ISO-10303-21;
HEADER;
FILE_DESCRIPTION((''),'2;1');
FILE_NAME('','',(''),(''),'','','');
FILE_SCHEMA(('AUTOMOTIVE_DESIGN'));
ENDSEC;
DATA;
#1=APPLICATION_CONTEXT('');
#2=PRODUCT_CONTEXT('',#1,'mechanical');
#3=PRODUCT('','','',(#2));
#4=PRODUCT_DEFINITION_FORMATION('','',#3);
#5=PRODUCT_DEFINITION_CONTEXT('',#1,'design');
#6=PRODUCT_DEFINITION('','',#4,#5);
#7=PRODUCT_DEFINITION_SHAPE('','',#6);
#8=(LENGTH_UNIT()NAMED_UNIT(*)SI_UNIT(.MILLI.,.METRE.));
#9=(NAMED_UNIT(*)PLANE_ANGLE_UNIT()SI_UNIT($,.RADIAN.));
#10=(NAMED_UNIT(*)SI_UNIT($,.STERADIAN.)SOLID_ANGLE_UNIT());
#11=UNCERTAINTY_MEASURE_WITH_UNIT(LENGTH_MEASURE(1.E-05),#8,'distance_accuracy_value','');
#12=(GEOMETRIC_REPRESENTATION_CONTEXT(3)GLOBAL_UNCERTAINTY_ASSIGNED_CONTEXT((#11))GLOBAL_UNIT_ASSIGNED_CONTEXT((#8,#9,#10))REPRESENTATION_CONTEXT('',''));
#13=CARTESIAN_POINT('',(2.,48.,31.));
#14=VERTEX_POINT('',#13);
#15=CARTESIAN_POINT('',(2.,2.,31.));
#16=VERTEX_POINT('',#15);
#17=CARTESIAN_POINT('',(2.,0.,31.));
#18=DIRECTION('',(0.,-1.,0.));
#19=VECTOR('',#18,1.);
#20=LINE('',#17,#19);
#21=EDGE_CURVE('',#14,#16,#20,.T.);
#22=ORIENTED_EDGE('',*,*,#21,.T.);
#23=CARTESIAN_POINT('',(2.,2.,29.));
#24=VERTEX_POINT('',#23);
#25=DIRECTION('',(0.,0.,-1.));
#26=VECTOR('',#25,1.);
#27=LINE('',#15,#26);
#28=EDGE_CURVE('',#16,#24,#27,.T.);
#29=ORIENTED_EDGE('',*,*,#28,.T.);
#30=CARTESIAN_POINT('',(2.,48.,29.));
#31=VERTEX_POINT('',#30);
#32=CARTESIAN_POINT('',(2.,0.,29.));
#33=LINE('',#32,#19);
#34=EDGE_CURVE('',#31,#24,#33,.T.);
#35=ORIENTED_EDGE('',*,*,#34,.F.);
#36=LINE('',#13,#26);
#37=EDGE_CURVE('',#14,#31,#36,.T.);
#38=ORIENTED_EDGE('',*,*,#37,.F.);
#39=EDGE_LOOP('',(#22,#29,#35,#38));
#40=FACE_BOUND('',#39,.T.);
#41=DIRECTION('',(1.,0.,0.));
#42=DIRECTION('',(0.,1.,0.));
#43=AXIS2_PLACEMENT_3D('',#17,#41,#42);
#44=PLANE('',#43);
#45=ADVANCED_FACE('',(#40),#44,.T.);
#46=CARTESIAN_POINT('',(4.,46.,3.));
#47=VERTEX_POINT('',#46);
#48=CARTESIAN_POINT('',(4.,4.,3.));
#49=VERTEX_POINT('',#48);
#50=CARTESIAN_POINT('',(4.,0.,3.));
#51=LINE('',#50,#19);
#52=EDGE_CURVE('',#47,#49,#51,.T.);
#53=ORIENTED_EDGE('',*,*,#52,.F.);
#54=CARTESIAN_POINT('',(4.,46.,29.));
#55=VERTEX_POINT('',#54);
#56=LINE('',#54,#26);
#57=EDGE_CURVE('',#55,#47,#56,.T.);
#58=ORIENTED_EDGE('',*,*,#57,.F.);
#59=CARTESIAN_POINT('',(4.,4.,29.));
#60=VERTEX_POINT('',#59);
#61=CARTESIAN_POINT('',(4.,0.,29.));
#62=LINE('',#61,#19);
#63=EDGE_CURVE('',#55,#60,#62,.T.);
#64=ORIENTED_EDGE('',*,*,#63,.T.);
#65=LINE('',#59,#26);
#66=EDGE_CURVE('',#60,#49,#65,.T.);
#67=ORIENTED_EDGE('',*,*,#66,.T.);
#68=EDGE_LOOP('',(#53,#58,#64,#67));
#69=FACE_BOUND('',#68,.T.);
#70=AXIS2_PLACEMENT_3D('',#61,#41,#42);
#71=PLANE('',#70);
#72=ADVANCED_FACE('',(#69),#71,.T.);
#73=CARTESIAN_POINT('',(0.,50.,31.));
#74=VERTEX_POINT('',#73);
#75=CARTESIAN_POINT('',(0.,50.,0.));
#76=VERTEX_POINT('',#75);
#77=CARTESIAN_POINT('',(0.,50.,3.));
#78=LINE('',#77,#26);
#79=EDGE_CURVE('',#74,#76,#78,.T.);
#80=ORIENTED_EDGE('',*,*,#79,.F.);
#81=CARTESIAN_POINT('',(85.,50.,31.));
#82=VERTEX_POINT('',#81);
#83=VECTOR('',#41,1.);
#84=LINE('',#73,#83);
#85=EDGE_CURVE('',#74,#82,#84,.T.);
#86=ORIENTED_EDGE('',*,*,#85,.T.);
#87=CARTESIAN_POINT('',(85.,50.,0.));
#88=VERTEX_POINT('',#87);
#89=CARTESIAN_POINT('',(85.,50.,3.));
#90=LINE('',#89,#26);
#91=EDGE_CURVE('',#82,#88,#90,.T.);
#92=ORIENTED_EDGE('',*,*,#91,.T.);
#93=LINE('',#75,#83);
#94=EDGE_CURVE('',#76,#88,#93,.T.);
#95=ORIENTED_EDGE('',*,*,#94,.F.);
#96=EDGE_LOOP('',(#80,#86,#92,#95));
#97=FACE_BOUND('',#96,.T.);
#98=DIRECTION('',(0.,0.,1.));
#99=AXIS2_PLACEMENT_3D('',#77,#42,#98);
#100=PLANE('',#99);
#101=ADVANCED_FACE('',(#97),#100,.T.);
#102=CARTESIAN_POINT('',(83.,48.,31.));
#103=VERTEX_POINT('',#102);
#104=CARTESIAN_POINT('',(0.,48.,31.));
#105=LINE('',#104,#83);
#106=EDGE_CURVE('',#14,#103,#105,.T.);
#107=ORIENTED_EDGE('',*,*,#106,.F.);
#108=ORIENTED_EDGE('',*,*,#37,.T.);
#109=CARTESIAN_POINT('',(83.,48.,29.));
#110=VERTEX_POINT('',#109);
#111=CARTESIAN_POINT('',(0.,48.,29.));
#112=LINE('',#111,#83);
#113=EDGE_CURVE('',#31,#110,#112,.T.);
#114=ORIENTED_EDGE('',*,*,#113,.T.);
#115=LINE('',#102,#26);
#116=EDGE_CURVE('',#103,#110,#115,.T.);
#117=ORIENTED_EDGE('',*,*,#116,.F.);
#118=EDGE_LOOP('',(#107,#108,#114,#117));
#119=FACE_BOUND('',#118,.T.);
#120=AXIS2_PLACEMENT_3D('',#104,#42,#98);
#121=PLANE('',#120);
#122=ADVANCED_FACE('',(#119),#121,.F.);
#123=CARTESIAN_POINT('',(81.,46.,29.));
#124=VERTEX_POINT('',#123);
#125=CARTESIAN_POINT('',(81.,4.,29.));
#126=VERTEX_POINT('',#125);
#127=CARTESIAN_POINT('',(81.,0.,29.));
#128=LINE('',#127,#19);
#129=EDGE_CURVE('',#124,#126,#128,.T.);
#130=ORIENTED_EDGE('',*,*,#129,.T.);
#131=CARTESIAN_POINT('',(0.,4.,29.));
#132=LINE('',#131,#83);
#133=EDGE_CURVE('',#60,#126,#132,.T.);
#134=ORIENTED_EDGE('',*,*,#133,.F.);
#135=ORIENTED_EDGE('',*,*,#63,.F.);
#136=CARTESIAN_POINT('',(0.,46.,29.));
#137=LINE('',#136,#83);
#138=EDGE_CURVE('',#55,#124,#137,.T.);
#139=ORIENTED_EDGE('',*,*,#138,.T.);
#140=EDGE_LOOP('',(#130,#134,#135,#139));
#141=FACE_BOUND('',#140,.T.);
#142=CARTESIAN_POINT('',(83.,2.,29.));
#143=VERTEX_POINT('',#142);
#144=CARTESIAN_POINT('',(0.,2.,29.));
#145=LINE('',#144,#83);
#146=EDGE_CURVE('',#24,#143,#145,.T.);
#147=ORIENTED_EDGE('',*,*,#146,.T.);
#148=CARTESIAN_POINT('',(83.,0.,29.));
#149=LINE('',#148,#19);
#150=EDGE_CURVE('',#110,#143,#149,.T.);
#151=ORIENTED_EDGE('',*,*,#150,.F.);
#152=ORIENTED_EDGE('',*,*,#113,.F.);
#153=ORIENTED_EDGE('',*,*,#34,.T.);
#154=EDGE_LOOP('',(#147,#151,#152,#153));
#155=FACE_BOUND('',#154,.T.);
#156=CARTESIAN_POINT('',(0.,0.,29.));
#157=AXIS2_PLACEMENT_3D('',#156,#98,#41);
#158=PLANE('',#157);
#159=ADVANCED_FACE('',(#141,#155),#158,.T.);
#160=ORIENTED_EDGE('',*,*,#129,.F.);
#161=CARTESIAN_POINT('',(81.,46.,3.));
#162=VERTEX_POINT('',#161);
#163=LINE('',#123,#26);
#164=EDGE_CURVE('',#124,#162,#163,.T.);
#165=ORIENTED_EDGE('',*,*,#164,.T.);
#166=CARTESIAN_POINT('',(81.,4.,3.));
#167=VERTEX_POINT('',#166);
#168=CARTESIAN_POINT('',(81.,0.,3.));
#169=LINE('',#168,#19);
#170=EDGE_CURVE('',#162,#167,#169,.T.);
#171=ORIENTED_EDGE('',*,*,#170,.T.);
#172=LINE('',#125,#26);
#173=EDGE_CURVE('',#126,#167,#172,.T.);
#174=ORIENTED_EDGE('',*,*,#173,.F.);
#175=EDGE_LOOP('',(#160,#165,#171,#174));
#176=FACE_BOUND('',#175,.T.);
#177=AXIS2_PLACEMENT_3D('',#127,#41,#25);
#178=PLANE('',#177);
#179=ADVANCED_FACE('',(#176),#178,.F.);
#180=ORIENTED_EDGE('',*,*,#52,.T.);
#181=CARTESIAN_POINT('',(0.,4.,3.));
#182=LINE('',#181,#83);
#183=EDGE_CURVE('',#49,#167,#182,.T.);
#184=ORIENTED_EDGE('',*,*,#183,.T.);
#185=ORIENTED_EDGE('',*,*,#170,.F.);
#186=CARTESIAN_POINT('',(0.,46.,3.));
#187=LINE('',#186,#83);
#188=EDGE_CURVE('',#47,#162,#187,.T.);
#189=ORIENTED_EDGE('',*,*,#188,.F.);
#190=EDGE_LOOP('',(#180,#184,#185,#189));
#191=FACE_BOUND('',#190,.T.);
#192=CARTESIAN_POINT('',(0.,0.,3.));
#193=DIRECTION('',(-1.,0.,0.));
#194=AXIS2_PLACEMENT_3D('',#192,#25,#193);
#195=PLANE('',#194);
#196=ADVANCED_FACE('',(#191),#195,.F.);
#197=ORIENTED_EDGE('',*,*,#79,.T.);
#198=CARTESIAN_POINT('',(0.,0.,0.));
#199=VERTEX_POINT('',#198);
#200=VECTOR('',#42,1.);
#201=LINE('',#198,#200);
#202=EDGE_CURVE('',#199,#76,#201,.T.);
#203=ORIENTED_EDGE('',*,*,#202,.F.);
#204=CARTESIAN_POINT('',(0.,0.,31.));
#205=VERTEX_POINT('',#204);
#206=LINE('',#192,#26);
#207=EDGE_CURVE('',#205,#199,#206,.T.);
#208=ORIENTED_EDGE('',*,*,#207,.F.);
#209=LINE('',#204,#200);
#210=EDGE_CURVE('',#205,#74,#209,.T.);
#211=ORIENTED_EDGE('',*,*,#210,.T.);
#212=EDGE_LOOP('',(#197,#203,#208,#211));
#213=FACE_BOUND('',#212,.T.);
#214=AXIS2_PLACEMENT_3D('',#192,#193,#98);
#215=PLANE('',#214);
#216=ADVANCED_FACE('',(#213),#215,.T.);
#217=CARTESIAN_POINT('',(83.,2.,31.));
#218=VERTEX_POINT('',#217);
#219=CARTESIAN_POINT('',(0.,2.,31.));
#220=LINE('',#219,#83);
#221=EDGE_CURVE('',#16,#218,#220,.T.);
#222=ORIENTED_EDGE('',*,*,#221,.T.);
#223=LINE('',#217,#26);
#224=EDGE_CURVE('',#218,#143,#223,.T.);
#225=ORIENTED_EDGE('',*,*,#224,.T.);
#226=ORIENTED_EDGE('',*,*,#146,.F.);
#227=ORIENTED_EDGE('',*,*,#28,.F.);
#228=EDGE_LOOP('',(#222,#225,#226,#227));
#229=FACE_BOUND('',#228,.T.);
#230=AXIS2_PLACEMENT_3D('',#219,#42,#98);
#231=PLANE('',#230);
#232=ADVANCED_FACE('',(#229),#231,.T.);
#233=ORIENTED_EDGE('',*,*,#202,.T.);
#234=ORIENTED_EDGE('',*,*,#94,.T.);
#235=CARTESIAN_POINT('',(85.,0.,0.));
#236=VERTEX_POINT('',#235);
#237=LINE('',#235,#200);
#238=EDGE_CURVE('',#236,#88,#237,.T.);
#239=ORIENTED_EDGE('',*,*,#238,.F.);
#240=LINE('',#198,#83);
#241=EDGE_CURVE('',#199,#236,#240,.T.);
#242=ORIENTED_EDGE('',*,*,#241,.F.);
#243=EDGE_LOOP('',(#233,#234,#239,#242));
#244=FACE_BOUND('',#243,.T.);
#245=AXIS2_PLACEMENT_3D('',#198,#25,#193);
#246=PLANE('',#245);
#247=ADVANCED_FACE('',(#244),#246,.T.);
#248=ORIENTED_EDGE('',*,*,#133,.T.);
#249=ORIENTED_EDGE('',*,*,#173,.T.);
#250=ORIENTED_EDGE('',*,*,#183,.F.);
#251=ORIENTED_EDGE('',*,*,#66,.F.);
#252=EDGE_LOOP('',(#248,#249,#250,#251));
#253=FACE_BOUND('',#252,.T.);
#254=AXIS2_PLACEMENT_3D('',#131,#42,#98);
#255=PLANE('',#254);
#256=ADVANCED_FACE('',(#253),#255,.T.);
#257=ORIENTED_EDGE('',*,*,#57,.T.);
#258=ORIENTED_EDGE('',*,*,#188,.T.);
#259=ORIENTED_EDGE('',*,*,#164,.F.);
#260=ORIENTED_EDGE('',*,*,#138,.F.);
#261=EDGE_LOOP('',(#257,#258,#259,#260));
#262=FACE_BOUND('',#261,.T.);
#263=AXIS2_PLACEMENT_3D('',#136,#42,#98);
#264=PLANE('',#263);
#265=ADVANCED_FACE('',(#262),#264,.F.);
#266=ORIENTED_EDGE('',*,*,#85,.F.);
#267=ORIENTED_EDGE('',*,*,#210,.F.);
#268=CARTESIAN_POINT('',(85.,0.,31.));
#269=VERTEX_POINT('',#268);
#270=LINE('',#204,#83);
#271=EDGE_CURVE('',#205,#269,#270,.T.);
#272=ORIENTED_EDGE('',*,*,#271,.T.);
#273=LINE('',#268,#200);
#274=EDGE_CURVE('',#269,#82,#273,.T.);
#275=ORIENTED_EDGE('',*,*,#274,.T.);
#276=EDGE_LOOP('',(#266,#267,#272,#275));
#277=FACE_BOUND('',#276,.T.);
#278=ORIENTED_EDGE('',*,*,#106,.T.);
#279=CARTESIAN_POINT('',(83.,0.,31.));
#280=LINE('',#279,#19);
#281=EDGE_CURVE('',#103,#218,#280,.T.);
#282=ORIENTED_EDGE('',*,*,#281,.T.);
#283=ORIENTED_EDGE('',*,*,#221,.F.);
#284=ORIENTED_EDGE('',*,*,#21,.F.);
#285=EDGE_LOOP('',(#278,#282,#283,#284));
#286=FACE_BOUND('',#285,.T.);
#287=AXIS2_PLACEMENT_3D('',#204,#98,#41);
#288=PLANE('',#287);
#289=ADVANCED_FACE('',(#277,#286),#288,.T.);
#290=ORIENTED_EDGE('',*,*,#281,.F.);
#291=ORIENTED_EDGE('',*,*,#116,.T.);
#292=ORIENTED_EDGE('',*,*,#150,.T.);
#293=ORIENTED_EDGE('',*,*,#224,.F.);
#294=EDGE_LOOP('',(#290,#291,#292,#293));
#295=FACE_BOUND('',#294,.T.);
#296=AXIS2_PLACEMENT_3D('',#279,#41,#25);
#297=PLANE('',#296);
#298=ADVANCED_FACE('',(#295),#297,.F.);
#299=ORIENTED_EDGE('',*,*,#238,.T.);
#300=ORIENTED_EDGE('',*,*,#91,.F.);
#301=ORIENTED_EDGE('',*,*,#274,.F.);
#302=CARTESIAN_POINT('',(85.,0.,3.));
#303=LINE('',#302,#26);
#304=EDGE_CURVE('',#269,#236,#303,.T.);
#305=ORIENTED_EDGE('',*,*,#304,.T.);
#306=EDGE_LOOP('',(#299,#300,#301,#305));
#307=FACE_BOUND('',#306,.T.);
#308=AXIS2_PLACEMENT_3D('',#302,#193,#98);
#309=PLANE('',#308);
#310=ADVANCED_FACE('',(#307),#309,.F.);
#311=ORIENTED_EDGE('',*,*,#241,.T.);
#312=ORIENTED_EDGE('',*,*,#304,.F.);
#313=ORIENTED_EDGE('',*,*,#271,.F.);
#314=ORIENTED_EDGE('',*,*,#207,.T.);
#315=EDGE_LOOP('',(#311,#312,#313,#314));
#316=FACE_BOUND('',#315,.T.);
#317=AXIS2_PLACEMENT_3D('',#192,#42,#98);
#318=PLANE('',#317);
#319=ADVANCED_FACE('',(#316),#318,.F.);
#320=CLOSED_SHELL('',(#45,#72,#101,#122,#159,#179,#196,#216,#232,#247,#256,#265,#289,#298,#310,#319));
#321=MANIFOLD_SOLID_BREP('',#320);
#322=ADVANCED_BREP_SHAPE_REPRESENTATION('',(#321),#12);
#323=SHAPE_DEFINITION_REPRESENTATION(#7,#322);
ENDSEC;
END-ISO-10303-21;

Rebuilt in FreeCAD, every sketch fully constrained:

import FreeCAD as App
import Part
import Sketcher

doc = App.newDocument("Part")
params = doc.addObject("Spreadsheet::Sheet", "Params")
for row, (alias, value) in enumerate([
    ("sketch1_width", "85 mm"),
    ("sketch1_height", "50 mm"),
    ("pad1_length", "3 mm"),
    ("sketch2_width", "85 mm"),
    ("sketch2_width2", "81 mm"),
    ("sketch2_height", "50 mm"),
    ("sketch2_height2", "46 mm"),
    ("pad2_length", "31 mm"),
    ("sketch3_width", "81 mm"),
    ("sketch3_width2", "77 mm"),
    ("sketch3_height", "46 mm"),
    ("sketch3_height2", "42 mm"),
    ("pad3_length", "29 mm"),
], start=1):
    params.set(f"A{row}", alias)
    params.set(f"B{row}", "=" + value)
    params.setAlias(f"B{row}", alias)

body = doc.addObject("PartDesign::Body", "Body")

# Sketch on XY plane
sketch1 = doc.addObject("Sketcher::SketchObject", "Sketch")
body.addObject(sketch1)
sketch1.AttachmentSupport = (doc.XY_Plane, [""])
sketch1.MapMode = "FlatFace"
sketch1.addGeometry(Part.LineSegment(App.Vector(0, 50, 0), App.Vector(0, 0, 0)), False)
sketch1.addGeometry(Part.LineSegment(App.Vector(0, 0, 0), App.Vector(85, 0, 0)), False)
sketch1.addGeometry(Part.LineSegment(App.Vector(85, 0, 0), App.Vector(85, 50, 0)), False)
sketch1.addGeometry(Part.LineSegment(App.Vector(85, 50, 0), App.Vector(0, 50, 0)), False)
sketch1.addConstraint(Sketcher.Constraint("Coincident", 0, 2, 1, 1))
sketch1.addConstraint(Sketcher.Constraint("Coincident", 1, 2, 2, 1))
sketch1.addConstraint(Sketcher.Constraint("Coincident", 2, 2, 3, 1))
sketch1.addConstraint(Sketcher.Constraint("Coincident", 3, 2, 0, 1))
sketch1.addConstraint(Sketcher.Constraint("Vertical", 0))
sketch1.addConstraint(Sketcher.Constraint("Horizontal", 1))
sketch1.addConstraint(Sketcher.Constraint("Vertical", 2))
sketch1.addConstraint(Sketcher.Constraint("Horizontal", 3))
sketch1.addConstraint(Sketcher.Constraint("Coincident", 0, 2, -1, 1))
sketch1.addConstraint(Sketcher.Constraint("DistanceX", 1, 1, 1, 2, 85.0))
sketch1.addConstraint(Sketcher.Constraint("DistanceY", 0, 2, 0, 1, 50.0))
sketch1.setExpression("Constraints[9]", "Params.sketch1_width")
sketch1.setExpression("Constraints[10]", "Params.sketch1_height")
pad1 = doc.addObject("PartDesign::Pad", "Pad")
body.addObject(pad1)
pad1.Profile = sketch1
pad1.setExpression("Length", "Params.pad1_length")

# Sketch on XY plane
sketch2 = doc.addObject("Sketcher::SketchObject", "Sketch001")
body.addObject(sketch2)
sketch2.AttachmentSupport = (doc.XY_Plane, [""])
sketch2.MapMode = "FlatFace"
sketch2.addGeometry(Part.LineSegment(App.Vector(0, 50, 0), App.Vector(0, 0, 0)), False)
sketch2.addGeometry(Part.LineSegment(App.Vector(0, 0, 0), App.Vector(85, 0, 0)), False)
sketch2.addGeometry(Part.LineSegment(App.Vector(85, 0, 0), App.Vector(85, 50, 0)), False)
sketch2.addGeometry(Part.LineSegment(App.Vector(85, 50, 0), App.Vector(0, 50, 0)), False)
sketch2.addGeometry(Part.LineSegment(App.Vector(83, 2, 0), App.Vector(2, 2, 0)), False)
sketch2.addGeometry(Part.LineSegment(App.Vector(2, 2, 0), App.Vector(2, 48, 0)), False)
sketch2.addGeometry(Part.LineSegment(App.Vector(2, 48, 0), App.Vector(83, 48, 0)), False)
sketch2.addGeometry(Part.LineSegment(App.Vector(83, 48, 0), App.Vector(83, 2, 0)), False)
sketch2.addConstraint(Sketcher.Constraint("Coincident", 0, 2, 1, 1))
sketch2.addConstraint(Sketcher.Constraint("Coincident", 1, 2, 2, 1))
sketch2.addConstraint(Sketcher.Constraint("Coincident", 2, 2, 3, 1))
sketch2.addConstraint(Sketcher.Constraint("Coincident", 3, 2, 0, 1))
sketch2.addConstraint(Sketcher.Constraint("Coincident", 4, 2, 5, 1))
sketch2.addConstraint(Sketcher.Constraint("Coincident", 5, 2, 6, 1))
sketch2.addConstraint(Sketcher.Constraint("Coincident", 6, 2, 7, 1))
sketch2.addConstraint(Sketcher.Constraint("Coincident", 7, 2, 4, 1))
sketch2.addConstraint(Sketcher.Constraint("Vertical", 0))
sketch2.addConstraint(Sketcher.Constraint("Horizontal", 1))
sketch2.addConstraint(Sketcher.Constraint("Vertical", 2))
sketch2.addConstraint(Sketcher.Constraint("Horizontal", 3))
sketch2.addConstraint(Sketcher.Constraint("Horizontal", 4))
sketch2.addConstraint(Sketcher.Constraint("Vertical", 5))
sketch2.addConstraint(Sketcher.Constraint("Horizontal", 6))
sketch2.addConstraint(Sketcher.Constraint("Vertical", 7))
sketch2.addConstraint(Sketcher.Constraint("Coincident", 0, 2, -1, 1))
sketch2.addConstraint(Sketcher.Constraint("DistanceX", 1, 1, 1, 2, 85.0))
sketch2.addConstraint(Sketcher.Constraint("DistanceX", 4, 2, 4, 1, 81.0))
sketch2.addConstraint(Sketcher.Constraint("DistanceY", 0, 2, 0, 1, 50.0))
sketch2.addConstraint(Sketcher.Constraint("DistanceY", 5, 1, 5, 2, 46.0))
sketch2.addConstraint(Sketcher.Constraint("DistanceX", -1, 1, 4, 2, 2.0))
sketch2.addConstraint(Sketcher.Constraint("DistanceY", -1, 1, 4, 2, 2.0))
sketch2.setExpression("Constraints[17]", "Params.sketch2_width")
sketch2.setExpression("Constraints[18]", "Params.sketch2_width2")
sketch2.setExpression("Constraints[19]", "Params.sketch2_height")
sketch2.setExpression("Constraints[20]", "Params.sketch2_height2")
pad2 = doc.addObject("PartDesign::Pad", "Pad001")
body.addObject(pad2)
pad2.Profile = sketch2
pad2.setExpression("Length", "Params.pad2_length")

# Sketch on XY plane
sketch3 = doc.addObject("Sketcher::SketchObject", "Sketch002")
body.addObject(sketch3)
sketch3.AttachmentSupport = (doc.XY_Plane, [""])
sketch3.MapMode = "FlatFace"
sketch3.addGeometry(Part.LineSegment(App.Vector(2, 48, 0), App.Vector(2, 2, 0)), False)
sketch3.addGeometry(Part.LineSegment(App.Vector(2, 2, 0), App.Vector(83, 2, 0)), False)
sketch3.addGeometry(Part.LineSegment(App.Vector(83, 2, 0), App.Vector(83, 48, 0)), False)
sketch3.addGeometry(Part.LineSegment(App.Vector(83, 48, 0), App.Vector(2, 48, 0)), False)
sketch3.addGeometry(Part.LineSegment(App.Vector(81, 4, 0), App.Vector(4, 4, 0)), False)
sketch3.addGeometry(Part.LineSegment(App.Vector(4, 4, 0), App.Vector(4, 46, 0)), False)
sketch3.addGeometry(Part.LineSegment(App.Vector(4, 46, 0), App.Vector(81, 46, 0)), False)
sketch3.addGeometry(Part.LineSegment(App.Vector(81, 46, 0), App.Vector(81, 4, 0)), False)
sketch3.addConstraint(Sketcher.Constraint("Coincident", 0, 2, 1, 1))
sketch3.addConstraint(Sketcher.Constraint("Coincident", 1, 2, 2, 1))
sketch3.addConstraint(Sketcher.Constraint("Coincident", 2, 2, 3, 1))
sketch3.addConstraint(Sketcher.Constraint("Coincident", 3, 2, 0, 1))
sketch3.addConstraint(Sketcher.Constraint("Coincident", 4, 2, 5, 1))
sketch3.addConstraint(Sketcher.Constraint("Coincident", 5, 2, 6, 1))
sketch3.addConstraint(Sketcher.Constraint("Coincident", 6, 2, 7, 1))
sketch3.addConstraint(Sketcher.Constraint("Coincident", 7, 2, 4, 1))
sketch3.addConstraint(Sketcher.Constraint("Vertical", 0))
sketch3.addConstraint(Sketcher.Constraint("Horizontal", 1))
sketch3.addConstraint(Sketcher.Constraint("Vertical", 2))
sketch3.addConstraint(Sketcher.Constraint("Horizontal", 3))
sketch3.addConstraint(Sketcher.Constraint("Horizontal", 4))
sketch3.addConstraint(Sketcher.Constraint("Vertical", 5))
sketch3.addConstraint(Sketcher.Constraint("Horizontal", 6))
sketch3.addConstraint(Sketcher.Constraint("Vertical", 7))
sketch3.addConstraint(Sketcher.Constraint("DistanceX", 1, 1, 1, 2, 81.0))
sketch3.addConstraint(Sketcher.Constraint("DistanceX", 4, 2, 4, 1, 77.0))
sketch3.addConstraint(Sketcher.Constraint("DistanceY", 0, 2, 0, 1, 46.0))
sketch3.addConstraint(Sketcher.Constraint("DistanceY", 5, 1, 5, 2, 42.0))
sketch3.addConstraint(Sketcher.Constraint("DistanceX", -1, 1, 0, 2, 2.0))
sketch3.addConstraint(Sketcher.Constraint("DistanceY", -1, 1, 0, 2, 2.0))
sketch3.addConstraint(Sketcher.Constraint("DistanceX", -1, 1, 4, 2, 4.0))
sketch3.addConstraint(Sketcher.Constraint("DistanceY", -1, 1, 4, 2, 4.0))
sketch3.setExpression("Constraints[16]", "Params.sketch3_width")
sketch3.setExpression("Constraints[17]", "Params.sketch3_width2")
sketch3.setExpression("Constraints[18]", "Params.sketch3_height")
sketch3.setExpression("Constraints[19]", "Params.sketch3_height2")
pad3 = doc.addObject("PartDesign::Pad", "Pad002")
body.addObject(pad3)
pad3.Profile = sketch3
pad3.setExpression("Length", "Params.pad3_length")

doc.recompute()
